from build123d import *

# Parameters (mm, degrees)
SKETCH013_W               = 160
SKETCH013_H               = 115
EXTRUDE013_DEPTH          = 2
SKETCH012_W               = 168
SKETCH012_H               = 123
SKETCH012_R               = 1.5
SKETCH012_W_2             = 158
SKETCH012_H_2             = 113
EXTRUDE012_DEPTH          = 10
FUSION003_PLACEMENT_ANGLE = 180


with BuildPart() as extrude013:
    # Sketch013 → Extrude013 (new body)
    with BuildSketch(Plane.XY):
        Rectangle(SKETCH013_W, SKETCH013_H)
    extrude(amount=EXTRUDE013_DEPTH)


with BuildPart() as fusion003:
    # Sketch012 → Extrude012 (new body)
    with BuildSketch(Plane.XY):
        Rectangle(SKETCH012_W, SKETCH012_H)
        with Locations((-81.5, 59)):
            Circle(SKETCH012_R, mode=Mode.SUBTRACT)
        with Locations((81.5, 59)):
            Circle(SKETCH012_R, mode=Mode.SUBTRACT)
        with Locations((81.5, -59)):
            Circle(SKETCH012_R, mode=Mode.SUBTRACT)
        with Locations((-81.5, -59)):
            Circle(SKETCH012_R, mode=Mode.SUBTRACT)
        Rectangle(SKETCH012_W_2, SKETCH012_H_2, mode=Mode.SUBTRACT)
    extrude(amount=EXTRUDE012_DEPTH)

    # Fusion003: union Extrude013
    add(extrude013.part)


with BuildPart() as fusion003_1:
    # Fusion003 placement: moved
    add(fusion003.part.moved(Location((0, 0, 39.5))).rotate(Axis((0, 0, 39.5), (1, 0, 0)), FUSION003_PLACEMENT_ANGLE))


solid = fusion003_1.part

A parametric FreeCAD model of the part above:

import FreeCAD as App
import Part
import Sketcher

V = App.Vector
Q = App.Units.Quantity


def add_polygon(sketch, points):
    """Adds a closed chain of lines whose ends are joined by coincident constraints."""
    first, n = sketch.GeometryCount, len(points)
    for a, b in zip(points, points[1:] + points[:1]):
        sketch.addGeometry(Part.LineSegment(App.Vector(*a, 0), App.Vector(*b, 0)), False)
    for i in range(n):
        sketch.addConstraint(Sketcher.Constraint("Coincident", first + i, 2, first + (i + 1) % n, 1))

doc = App.newDocument("Part")
body = doc.addObject("PartDesign::Body", "Body")

sketch1 = body.newObject("Sketcher::SketchObject", "Sketch")
sketch1.AttachmentSupport = (doc.getObject("XY_Plane"), [""])
sketch1.MapMode = "FlatFace"
add_polygon(sketch1, [(-80, 57.5), (-80, -57.5), (80, -57.5), (80, 57.5)])
sketch1.addConstraint(Sketcher.Constraint("Vertical", 0))
sketch1.addConstraint(Sketcher.Constraint("Horizontal", 1))
sketch1.addConstraint(Sketcher.Constraint("Vertical", 2))
sketch1.addConstraint(Sketcher.Constraint("Horizontal", 3))
sketch1.addConstraint(Sketcher.Constraint("Symmetric", 0, 2, 2, 2, -1, 1))
sketch1.addConstraint(Sketcher.Constraint("DistanceX", 1, 1, 1, 2, Q("160 mm")))
sketch1.addConstraint(Sketcher.Constraint("DistanceY", 0, 2, 0, 1, Q("115 mm")))
pad1 = body.newObject("PartDesign::Pad", "Pad")
pad1.Profile = sketch1
pad1.Length = 2
body2 = doc.addObject("PartDesign::Body", "Body001")

sketch2 = body2.newObject("Sketcher::SketchObject", "Sketch001")
sketch2.AttachmentSupport = (doc.getObject("XY_Plane001"), [""])
sketch2.MapMode = "FlatFace"
add_polygon(sketch2, [(-84, 61.5), (-84, -61.5), (84, -61.5), (84, 61.5)])
sketch2.addGeometry(Part.Circle(V(-81.5, -59, 0), V(0, 0, 1), 1.5), False)
sketch2.addGeometry(Part.Circle(V(81.5, -59, 0), V(0, 0, 1), 1.5), False)
sketch2.addGeometry(Part.Circle(V(-81.5, 59, 0), V(0, 0, 1), 1.5), False)
add_polygon(sketch2, [(79, -56.5), (-79, -56.5), (-79, 56.5), (79, 56.5)])
sketch2.addGeometry(Part.Circle(V(81.5, 59, 0), V(0, 0, 1), 1.5), False)
sketch2.addConstraint(Sketcher.Constraint("Vertical", 0))
sketch2.addConstraint(Sketcher.Constraint("Horizontal", 1))
sketch2.addConstraint(Sketcher.Constraint("Vertical", 2))
sketch2.addConstraint(Sketcher.Constraint("Horizontal", 3))
sketch2.addConstraint(Sketcher.Constraint("Horizontal", 7))
sketch2.addConstraint(Sketcher.Constraint("Vertical", 8))
sketch2.addConstraint(Sketcher.Constraint("Horizontal", 9))
sketch2.addConstraint(Sketcher.Constraint("Vertical", 10))
sketch2.addConstraint(Sketcher.Constraint("Equal", 4, 5))
sketch2.addConstraint(Sketcher.Constraint("Equal", 5, 6))
sketch2.addConstraint(Sketcher.Constraint("Equal", 6, 11))
sketch2.addConstraint(Sketcher.Constraint("Symmetric", 5, 3, 6, 3, -1, 1))
sketch2.addConstraint(Sketcher.Constraint("Symmetric", 4, 3, 11, 3, -1, 1))
sketch2.addConstraint(Sketcher.Constraint("Symmetric", 0, 2, 2, 2, -1, 1))
sketch2.addConstraint(Sketcher.Constraint("Symmetric", 7, 2, 9, 2, -1, 1))
sketch2.addConstraint(Sketcher.Constraint("Symmetric", 4, 3, 5, 3, -2))
sketch2.addConstraint(Sketcher.Constraint("Diameter", 4, Q("3 mm")))
sketch2.addConstraint(Sketcher.Constraint("DistanceX", 1, 1, 1, 2, Q("168 mm")))
sketch2.addConstraint(Sketcher.Constraint("DistanceX", 7, 2, 7, 1, Q("158 mm")))
sketch2.addConstraint(Sketcher.Constraint("DistanceY", 0, 2, 0, 1, Q("123 mm")))
sketch2.addConstraint(Sketcher.Constraint("DistanceY", 8, 1, 8, 2, Q("113 mm")))
sketch2.addConstraint(Sketcher.Constraint("DistanceY", 4, 3, -1, 1, Q("59 mm")))
sketch2.addConstraint(Sketcher.Constraint("DistanceX", 4, 3, 5, 3, Q("163 mm")))
pad2 = body2.newObject("PartDesign::Pad", "Pad001")
pad2.Profile = sketch2
pad2.Length = 10
doc.recompute()

boolean = body2.newObject("PartDesign::Boolean", "Boolean")
boolean.Type = "Fuse"
boolean.addObjects([body])
body3 = doc.addObject("PartDesign::Body", "Body002")
doc.recompute()

body2.Placement = App.Placement(V(0, 0, 39.5), App.Rotation(V(1, 0, 0), 180))
boolean2 = body3.newObject("PartDesign::Boolean", "Boolean001")
boolean2.Type = "Fuse"
boolean2.addObjects([body2])

doc.recompute()
